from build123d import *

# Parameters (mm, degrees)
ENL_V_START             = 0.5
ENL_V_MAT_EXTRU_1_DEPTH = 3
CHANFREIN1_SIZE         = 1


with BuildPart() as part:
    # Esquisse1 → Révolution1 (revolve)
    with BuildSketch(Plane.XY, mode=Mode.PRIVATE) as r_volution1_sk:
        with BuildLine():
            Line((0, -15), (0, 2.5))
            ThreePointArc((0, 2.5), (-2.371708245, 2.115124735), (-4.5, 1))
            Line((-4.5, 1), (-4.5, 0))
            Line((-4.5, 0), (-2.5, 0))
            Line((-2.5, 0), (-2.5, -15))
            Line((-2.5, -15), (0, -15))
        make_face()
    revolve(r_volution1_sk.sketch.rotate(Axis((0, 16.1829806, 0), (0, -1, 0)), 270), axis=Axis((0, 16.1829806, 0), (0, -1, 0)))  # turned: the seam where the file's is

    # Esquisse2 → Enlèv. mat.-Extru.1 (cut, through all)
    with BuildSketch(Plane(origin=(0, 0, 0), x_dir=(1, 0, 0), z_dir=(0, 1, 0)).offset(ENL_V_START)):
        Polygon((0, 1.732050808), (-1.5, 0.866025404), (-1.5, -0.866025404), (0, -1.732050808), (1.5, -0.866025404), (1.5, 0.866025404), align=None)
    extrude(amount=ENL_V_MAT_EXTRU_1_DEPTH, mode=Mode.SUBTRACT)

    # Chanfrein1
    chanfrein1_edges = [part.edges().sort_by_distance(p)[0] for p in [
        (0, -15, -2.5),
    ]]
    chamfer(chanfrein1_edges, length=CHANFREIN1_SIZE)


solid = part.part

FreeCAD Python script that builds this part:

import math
import FreeCAD as App
import Part
import Sketcher

V = App.Vector
Q = App.Units.Quantity


def edges_at(feature, points):
    """Names of the edges that pass closest to the given points."""
    edges = feature.Shape.Edges
    near = lambda p: min(range(len(edges)), key=lambda i: edges[i].distToShape(Part.Vertex(*p))[0])
    return sorted({f"Edge{near(p) + 1}" for p in points})


def add_polygon(sketch, points):
    """Adds a closed chain of lines whose ends are joined by coincident constraints."""
    first, n = sketch.GeometryCount, len(points)
    for a, b in zip(points, points[1:] + points[:1]):
        sketch.addGeometry(Part.LineSegment(App.Vector(*a, 0), App.Vector(*b, 0)), False)
    for i in range(n):
        sketch.addConstraint(Sketcher.Constraint("Coincident", first + i, 2, first + (i + 1) % n, 1))

doc = App.newDocument("Part")
body = doc.addObject("PartDesign::Body", "Body")

sketch1 = doc.addObject("Sketcher::SketchObject", "Sketch")
body.addObject(sketch1)
sketch1.AttachmentSupport = (doc.XY_Plane, [""])
sketch1.MapMode = "FlatFace"
sketch1.addGeometry([
    Part.LineSegment(V(0, -15, 0), V(0, 2.5, 0)),
    Part.ArcOfCircle(Part.Circle(V(0, -5, 0), V(0, 0, 1), 7.5), math.radians(90), math.radians(127)),
    Part.LineSegment(V(-4.5, 1, 0), V(-4.5, 0, 0)),
    Part.LineSegment(V(-4.5, 0, 0), V(-2.5, 0, 0)),
    Part.LineSegment(V(-2.5, 0, 0), V(-2.5, -15, 0)),
    Part.LineSegment(V(-2.5, -15, 0), V(0, -15, 0)),
], False)
sketch1.addConstraint([
    Sketcher.Constraint("Coincident", 0, 2, 1, 1),
    Sketcher.Constraint("Coincident", 1, 2, 2, 1),
    Sketcher.Constraint("Coincident", 2, 2, 3, 1),
    Sketcher.Constraint("Coincident", 3, 2, 4, 1),
    Sketcher.Constraint("Coincident", 4, 2, 5, 1),
    Sketcher.Constraint("Coincident", 5, 2, 0, 1),
    Sketcher.Constraint("Vertical", 0),
    Sketcher.Constraint("Vertical", 2),
    Sketcher.Constraint("Horizontal", 3),
    Sketcher.Constraint("Vertical", 4),
    Sketcher.Constraint("Horizontal", 5),
    Sketcher.Constraint("PointOnObject", 1, 3, -2),
    Sketcher.Constraint("PointOnObject", 0, 2, -2),
    Sketcher.Constraint("PointOnObject", 2, 2, -1),
    Sketcher.Constraint("Radius", 1, 7.5),
    Sketcher.Constraint("DistanceX", 3, 1, 3, 2, 2.0),
    Sketcher.Constraint("DistanceY", 2, 2, 2, 1, 1.0),
    Sketcher.Constraint("DistanceY", 4, 2, 4, 1, 15.0),
    Sketcher.Constraint("DistanceX", 5, 1, 5, 2, 2.5),
])
revolution = doc.addObject("PartDesign::Revolution", "Revolution")
body.addObject(revolution)
revolution.Profile = sketch1
revolution.ReferenceAxis = (sketch1, ["V_Axis"])
revolution.Angle = 360

sketch2 = doc.addObject("Sketcher::SketchObject", "Sketch001")
body.addObject(sketch2)
sketch2.AttachmentSupport = (doc.XZ_Plane, [""])
sketch2.MapMode = "FlatFace"
sketch2.AttachmentOffset = App.Placement(V(0, 0, -0.5), App.Rotation())
add_polygon(sketch2, [(0, -1.7), (-1.5, -0.9), (-1.5, 0.9), (0, 1.7), (1.5, 0.9), (1.5, -0.9)])
sketch2.addConstraint([
    Sketcher.Constraint("Vertical", 1),
    Sketcher.Constraint("Vertical", 4),
    Sketcher.Constraint("Symmetric", 0, 2, 3, 2, -1, 1),
    Sketcher.Constraint("Symmetric", 2, 2, 5, 2, -1, 1),
    Sketcher.Constraint("PointOnObject", 2, 2, -2),
    Sketcher.Constraint("Parallel", 2, 5),
    Sketcher.Constraint("Horizontal", 1, 2, 3, 2),
    Sketcher.Constraint("Angle", 0, Q("150 deg")),
    Sketcher.Constraint("DistanceX", 1, 2, 3, 2, 3.0),
    Sketcher.Constraint("DistanceY", 1, 1, 1, 2, 1.732051),
])
pocket1 = doc.addObject("PartDesign::Pocket", "Pocket")
body.addObject(pocket1)
pocket1.Profile = sketch2
pocket1.Type = "ThroughAll"
doc.recompute()

chamfer = doc.addObject("PartDesign::Chamfer", "Chamfer")
body.addObject(chamfer)
chamfer.Base = (pocket1, edges_at(pocket1, [(0, -15, -2.5)]))
chamfer.Size = 1

doc.recompute()
